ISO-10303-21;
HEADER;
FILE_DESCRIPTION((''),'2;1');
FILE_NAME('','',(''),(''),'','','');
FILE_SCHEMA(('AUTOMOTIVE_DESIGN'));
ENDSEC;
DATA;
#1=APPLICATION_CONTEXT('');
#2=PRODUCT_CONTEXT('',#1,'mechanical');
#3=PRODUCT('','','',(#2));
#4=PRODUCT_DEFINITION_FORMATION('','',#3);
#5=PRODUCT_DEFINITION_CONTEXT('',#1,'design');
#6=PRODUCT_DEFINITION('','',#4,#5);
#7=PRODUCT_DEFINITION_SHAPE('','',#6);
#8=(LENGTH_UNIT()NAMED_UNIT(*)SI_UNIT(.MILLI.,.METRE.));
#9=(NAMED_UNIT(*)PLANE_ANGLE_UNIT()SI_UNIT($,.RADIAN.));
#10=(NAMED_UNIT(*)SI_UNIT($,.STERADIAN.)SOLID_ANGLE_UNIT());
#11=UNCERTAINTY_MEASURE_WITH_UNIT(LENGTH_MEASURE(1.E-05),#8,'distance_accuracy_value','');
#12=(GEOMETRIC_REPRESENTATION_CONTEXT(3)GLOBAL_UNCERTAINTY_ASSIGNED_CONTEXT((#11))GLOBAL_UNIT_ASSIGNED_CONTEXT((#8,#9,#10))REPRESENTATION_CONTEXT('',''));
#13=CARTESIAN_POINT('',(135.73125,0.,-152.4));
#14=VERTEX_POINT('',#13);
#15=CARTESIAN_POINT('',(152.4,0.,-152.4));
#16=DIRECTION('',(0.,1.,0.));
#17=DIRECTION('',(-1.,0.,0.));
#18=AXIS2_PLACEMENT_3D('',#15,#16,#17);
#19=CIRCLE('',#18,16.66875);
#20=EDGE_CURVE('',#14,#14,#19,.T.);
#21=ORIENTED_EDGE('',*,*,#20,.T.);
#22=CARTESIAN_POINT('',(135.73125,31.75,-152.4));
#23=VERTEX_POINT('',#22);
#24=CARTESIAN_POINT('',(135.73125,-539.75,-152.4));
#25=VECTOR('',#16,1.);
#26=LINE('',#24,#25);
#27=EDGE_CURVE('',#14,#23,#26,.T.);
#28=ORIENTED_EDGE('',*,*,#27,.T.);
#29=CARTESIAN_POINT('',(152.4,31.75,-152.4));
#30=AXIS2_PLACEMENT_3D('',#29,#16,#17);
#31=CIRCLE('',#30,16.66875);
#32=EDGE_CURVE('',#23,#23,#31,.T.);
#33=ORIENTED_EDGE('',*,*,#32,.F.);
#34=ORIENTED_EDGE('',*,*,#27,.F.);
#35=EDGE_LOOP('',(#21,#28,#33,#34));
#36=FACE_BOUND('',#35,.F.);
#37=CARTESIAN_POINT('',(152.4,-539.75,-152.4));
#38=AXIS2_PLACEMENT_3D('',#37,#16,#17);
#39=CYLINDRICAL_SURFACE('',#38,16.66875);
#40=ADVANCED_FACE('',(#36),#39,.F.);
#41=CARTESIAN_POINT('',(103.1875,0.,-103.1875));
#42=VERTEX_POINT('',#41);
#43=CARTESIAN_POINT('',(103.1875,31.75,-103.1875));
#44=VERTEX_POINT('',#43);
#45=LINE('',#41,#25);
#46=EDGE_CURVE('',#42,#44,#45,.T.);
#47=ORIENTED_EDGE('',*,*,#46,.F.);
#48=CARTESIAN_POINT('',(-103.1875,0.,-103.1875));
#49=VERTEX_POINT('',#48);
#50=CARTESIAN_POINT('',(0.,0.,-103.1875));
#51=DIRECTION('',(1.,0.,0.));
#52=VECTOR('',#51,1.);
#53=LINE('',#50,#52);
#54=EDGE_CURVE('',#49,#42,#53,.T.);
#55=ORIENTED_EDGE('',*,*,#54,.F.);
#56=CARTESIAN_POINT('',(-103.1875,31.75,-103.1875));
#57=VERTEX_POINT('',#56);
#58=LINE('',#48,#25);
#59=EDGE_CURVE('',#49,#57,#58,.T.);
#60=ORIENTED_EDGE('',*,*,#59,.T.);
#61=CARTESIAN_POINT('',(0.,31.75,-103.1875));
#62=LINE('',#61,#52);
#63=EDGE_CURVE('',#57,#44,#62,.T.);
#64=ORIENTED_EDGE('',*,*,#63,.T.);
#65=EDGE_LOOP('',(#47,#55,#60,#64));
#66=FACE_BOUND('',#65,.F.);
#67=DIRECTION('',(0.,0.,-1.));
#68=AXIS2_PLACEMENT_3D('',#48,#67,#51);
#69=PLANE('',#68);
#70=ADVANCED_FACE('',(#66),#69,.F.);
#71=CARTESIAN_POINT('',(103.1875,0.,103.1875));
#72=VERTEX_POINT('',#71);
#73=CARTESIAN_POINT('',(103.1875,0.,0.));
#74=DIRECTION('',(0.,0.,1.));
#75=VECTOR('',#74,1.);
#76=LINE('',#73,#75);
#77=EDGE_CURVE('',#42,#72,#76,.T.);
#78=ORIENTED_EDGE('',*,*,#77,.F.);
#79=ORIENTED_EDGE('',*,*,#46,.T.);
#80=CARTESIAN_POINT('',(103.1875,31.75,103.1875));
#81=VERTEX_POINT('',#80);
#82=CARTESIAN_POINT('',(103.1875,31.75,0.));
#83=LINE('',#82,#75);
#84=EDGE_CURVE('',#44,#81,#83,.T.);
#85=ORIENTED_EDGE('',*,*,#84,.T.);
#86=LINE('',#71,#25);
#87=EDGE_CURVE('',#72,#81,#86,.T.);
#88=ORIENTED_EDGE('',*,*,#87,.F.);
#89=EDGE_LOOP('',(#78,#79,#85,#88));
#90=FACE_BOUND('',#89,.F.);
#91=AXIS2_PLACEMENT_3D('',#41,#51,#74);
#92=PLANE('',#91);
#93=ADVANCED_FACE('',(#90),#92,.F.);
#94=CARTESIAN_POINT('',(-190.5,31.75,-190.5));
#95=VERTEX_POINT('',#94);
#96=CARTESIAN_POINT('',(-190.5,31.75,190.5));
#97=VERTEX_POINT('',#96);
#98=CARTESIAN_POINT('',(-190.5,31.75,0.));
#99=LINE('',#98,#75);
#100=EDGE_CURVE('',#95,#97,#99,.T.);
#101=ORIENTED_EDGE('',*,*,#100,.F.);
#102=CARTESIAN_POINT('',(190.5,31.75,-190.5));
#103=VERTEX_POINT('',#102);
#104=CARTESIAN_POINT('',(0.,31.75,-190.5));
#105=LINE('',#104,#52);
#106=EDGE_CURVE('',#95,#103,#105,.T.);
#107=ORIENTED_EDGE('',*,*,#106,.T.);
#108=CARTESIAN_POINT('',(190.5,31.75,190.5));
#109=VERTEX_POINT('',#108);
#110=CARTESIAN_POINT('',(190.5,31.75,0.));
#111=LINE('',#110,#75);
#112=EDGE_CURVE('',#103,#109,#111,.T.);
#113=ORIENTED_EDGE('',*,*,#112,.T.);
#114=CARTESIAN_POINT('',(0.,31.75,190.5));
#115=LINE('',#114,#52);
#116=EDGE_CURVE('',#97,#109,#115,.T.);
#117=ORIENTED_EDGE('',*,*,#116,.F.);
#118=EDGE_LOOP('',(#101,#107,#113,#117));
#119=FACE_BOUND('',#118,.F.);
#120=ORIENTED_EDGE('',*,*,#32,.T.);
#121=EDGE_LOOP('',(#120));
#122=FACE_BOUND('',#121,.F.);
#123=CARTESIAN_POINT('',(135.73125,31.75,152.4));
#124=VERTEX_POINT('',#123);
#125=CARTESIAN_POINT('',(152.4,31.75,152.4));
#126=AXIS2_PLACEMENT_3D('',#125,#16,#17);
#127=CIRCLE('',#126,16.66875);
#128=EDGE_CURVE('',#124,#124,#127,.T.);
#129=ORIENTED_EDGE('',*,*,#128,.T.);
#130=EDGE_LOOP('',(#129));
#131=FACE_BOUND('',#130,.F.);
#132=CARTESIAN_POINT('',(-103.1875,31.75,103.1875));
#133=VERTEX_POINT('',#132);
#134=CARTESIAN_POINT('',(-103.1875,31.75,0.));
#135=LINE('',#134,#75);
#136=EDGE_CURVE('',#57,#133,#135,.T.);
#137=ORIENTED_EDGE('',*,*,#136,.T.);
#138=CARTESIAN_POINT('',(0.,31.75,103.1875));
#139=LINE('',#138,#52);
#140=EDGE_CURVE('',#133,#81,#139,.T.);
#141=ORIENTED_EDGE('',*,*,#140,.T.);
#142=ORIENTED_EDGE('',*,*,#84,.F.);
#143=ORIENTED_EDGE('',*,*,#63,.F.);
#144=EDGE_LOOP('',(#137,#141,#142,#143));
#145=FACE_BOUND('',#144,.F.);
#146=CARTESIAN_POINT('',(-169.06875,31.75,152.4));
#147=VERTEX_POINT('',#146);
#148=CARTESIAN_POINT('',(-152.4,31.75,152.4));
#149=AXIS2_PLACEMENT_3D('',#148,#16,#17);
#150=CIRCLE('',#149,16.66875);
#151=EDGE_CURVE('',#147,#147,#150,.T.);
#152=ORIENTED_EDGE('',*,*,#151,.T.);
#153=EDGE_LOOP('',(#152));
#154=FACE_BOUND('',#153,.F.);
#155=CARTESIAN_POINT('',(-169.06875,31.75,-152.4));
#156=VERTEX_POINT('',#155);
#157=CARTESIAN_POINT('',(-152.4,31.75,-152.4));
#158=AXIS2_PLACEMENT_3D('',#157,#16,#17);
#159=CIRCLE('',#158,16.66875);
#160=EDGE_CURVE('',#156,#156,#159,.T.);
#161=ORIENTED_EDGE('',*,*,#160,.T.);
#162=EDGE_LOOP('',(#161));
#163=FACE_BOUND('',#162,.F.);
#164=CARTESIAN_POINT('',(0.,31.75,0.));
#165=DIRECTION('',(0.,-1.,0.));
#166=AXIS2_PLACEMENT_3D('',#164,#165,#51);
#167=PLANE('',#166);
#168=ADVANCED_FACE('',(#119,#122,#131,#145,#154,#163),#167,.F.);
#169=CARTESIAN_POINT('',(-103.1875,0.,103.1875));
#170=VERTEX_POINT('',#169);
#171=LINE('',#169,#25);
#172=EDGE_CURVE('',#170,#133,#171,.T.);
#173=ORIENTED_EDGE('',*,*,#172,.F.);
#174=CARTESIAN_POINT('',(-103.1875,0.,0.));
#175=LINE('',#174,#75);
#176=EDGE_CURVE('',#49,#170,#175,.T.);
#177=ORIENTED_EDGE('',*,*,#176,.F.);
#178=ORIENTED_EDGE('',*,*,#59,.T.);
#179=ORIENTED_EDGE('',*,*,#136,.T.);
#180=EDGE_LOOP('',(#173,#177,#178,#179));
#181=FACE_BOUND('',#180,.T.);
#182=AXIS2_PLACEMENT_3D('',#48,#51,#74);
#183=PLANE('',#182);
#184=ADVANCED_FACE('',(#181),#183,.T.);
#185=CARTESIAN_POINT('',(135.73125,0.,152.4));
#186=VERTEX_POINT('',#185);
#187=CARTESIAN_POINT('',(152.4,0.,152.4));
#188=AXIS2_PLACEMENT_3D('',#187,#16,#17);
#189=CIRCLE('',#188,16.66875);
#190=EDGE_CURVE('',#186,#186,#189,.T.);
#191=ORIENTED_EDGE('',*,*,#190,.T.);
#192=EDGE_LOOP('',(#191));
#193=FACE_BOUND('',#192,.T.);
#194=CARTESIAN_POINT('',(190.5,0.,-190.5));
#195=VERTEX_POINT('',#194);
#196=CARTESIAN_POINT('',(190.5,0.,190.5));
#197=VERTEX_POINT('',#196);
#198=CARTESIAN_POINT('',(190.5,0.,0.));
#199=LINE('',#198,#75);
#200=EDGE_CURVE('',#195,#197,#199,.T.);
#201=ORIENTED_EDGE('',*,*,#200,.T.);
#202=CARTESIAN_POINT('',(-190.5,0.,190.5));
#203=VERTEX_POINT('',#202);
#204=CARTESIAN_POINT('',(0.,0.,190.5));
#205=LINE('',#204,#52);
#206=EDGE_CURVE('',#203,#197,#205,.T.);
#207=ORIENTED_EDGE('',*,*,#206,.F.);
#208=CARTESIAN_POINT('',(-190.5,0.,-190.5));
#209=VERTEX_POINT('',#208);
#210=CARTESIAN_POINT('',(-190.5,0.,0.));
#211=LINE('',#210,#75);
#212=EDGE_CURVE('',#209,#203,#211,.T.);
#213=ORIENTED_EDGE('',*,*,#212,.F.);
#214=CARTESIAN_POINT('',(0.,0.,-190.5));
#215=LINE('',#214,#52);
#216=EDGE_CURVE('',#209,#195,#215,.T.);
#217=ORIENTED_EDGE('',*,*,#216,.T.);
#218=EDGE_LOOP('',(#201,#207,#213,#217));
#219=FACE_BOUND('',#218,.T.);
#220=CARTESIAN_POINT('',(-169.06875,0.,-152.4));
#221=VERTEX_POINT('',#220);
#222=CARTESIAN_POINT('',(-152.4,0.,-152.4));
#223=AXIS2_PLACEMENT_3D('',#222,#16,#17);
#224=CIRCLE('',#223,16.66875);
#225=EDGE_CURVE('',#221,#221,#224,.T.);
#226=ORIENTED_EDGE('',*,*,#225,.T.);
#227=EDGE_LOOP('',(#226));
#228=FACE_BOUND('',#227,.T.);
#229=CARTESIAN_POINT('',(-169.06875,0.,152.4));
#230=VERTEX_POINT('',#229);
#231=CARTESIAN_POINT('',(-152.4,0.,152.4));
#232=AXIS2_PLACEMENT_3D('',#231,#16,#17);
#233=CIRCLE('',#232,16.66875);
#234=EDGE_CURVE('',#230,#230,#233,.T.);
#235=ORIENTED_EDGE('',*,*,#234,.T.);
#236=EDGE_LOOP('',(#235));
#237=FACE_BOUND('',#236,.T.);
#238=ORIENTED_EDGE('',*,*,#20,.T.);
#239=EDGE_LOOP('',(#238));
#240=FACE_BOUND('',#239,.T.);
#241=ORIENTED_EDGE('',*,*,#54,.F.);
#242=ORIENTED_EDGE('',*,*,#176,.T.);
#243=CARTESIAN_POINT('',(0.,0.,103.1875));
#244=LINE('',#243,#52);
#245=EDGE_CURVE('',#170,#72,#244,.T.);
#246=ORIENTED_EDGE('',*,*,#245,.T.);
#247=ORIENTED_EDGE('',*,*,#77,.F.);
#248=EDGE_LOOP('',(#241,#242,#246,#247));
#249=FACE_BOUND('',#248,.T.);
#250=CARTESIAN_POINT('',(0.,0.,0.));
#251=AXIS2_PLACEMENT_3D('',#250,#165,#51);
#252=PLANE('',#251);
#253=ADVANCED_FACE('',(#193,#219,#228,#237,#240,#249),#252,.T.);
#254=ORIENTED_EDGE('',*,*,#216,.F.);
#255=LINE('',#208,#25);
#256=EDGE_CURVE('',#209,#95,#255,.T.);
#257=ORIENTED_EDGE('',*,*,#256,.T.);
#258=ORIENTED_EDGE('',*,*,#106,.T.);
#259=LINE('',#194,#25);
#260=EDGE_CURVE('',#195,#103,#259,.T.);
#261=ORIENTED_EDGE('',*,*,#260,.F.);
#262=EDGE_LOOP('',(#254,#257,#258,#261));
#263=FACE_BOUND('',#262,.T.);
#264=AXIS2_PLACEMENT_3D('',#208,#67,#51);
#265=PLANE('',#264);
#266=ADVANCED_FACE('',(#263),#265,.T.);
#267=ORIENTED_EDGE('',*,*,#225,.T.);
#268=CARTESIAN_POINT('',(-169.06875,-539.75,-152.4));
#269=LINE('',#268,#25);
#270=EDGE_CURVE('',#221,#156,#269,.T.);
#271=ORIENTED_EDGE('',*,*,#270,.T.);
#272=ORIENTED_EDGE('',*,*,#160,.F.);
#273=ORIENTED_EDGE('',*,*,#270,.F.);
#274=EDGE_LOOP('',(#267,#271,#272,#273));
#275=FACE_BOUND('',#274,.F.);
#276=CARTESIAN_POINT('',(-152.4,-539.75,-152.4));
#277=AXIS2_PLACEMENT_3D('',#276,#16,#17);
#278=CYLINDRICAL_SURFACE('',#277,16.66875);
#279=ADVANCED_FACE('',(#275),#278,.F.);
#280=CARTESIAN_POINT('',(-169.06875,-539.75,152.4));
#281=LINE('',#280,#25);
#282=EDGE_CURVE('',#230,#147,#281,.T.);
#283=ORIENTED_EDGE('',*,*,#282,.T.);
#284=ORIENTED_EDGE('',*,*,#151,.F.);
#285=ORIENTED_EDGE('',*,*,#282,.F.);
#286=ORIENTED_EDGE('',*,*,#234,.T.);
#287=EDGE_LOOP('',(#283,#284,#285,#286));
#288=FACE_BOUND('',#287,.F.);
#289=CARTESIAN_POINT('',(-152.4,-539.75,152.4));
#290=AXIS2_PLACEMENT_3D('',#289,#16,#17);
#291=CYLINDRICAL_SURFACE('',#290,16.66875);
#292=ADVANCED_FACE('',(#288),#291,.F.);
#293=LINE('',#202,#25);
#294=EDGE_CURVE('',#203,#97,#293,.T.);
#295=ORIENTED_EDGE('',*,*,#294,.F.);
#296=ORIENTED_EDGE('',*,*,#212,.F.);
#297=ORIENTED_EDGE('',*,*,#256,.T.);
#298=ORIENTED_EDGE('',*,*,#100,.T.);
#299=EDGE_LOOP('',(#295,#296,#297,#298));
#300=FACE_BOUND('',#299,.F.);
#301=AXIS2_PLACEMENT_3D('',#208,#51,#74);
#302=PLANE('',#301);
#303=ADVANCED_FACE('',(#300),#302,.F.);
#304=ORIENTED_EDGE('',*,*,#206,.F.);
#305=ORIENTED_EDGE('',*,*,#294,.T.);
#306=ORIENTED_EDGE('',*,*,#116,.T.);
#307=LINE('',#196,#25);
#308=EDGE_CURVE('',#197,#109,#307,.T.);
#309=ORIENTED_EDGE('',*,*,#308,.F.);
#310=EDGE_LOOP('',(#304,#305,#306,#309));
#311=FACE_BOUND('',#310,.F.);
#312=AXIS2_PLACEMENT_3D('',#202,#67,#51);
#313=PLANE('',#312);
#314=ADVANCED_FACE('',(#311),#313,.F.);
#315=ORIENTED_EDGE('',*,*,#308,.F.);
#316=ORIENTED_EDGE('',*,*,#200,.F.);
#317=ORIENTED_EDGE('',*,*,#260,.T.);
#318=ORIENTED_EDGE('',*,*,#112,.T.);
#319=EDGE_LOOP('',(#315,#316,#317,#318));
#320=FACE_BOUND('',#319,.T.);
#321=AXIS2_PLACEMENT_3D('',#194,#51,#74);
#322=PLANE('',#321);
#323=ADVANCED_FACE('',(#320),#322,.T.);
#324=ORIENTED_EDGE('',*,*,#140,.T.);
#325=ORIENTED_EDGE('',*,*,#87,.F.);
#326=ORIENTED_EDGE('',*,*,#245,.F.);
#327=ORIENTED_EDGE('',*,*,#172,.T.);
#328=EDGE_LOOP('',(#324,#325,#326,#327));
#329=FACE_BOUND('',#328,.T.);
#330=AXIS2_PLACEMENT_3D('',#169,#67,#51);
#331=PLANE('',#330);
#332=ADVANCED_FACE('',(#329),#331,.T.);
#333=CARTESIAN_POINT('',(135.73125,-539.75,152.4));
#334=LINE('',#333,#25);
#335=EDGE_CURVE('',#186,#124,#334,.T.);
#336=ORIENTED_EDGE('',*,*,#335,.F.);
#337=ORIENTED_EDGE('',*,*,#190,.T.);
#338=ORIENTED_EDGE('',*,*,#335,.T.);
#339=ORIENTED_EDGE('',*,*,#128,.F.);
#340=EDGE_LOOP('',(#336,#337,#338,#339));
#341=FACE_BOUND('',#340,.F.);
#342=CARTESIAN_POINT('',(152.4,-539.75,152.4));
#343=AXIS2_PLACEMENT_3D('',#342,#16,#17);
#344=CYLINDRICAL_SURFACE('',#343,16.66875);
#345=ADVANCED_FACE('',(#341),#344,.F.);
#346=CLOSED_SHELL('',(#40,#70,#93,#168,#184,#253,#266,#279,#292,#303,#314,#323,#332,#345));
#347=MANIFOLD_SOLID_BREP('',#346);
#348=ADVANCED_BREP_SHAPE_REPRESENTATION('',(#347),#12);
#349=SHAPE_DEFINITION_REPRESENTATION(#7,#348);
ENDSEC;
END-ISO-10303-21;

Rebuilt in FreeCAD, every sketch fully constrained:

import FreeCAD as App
import Part
import Sketcher
from FreeCAD import Vector
Q = App.Units.Quantity


def add_polygon(sketch, points):
    """Adds a closed chain of lines whose ends are joined by coincident constraints."""
    first, n = sketch.GeometryCount, len(points)
    for a, b in zip(points, points[1:] + points[:1]):
        sketch.addGeometry(Part.LineSegment(App.Vector(*a, 0), App.Vector(*b, 0)), False)
    for i in range(n):
        sketch.addConstraint(Sketcher.Constraint("Coincident", first + i, 2, first + (i + 1) % n, 1))

doc = App.newDocument("Part")
params = doc.addObject("Spreadsheet::Sheet", "Params")
for row, (alias, value) in enumerate([
    ("sketch1_width", "15 in"),
    ("sketch1_width2", "8.125 in"),
    ("pad1_length", "1.25 in"),
    ("sketch2_diameter", "1.3125 in"),
    ("hole_diameter", "1.3125 in"),
], start=1):
    params.set(f"A{row}", alias)
    params.set(f"B{row}", "=" + value)
    params.setAlias(f"B{row}", alias)

body = doc.addObject("PartDesign::Body", "Body")

# Sketch on XZ plane
sketch1 = body.newObject("Sketcher::SketchObject", "Sketch")
sketch1.AttachmentSupport = (doc.getObject("XZ_Plane"), [""])
sketch1.MapMode = "FlatFace"
add_polygon(sketch1, [(-190, 190), (-190, -190), (190, -190), (190, 190)])  # lines 0-3
add_polygon(sketch1, [(103, -103), (-103, -103), (-103, 103), (103, 103)])  # lines 4-7
sketch1.addConstraint(Sketcher.Constraint("Vertical", 0))
sketch1.addConstraint(Sketcher.Constraint("Horizontal", 1))
sketch1.addConstraint(Sketcher.Constraint("Vertical", 2))
sketch1.addConstraint(Sketcher.Constraint("Horizontal", 3))
sketch1.addConstraint(Sketcher.Constraint("Horizontal", 4))
sketch1.addConstraint(Sketcher.Constraint("Vertical", 5))
sketch1.addConstraint(Sketcher.Constraint("Horizontal", 6))
sketch1.addConstraint(Sketcher.Constraint("Vertical", 7))
sketch1.addConstraint(Sketcher.Constraint("Symmetric", 0, 2, 2, 2, -1, 1))
sketch1.addConstraint(Sketcher.Constraint("Symmetric", 4, 2, 6, 2, -1, 1))
sketch1.addConstraint(Sketcher.Constraint("Equal", 3, 0))
sketch1.addConstraint(Sketcher.Constraint("Equal", 6, 5))
sketch1.addConstraint(Sketcher.Constraint("DistanceX", 1, 1, 1, 2, Q("15 in")))
sketch1.addConstraint(Sketcher.Constraint("DistanceX", 4, 2, 4, 1, Q("8.125 in")))
sketch1.setExpression("Constraints[20]", "Params.sketch1_width")
sketch1.setExpression("Constraints[21]", "Params.sketch1_width2")
pad1 = body.newObject("PartDesign::Pad", "Pad")
pad1.Profile = sketch1
pad1.setExpression("Length", "Params.pad1_length")
pad1.Reversed = True

# Sketch on XZ plane
sketch2 = body.newObject("Sketcher::SketchObject", "Sketch001")
sketch2.AttachmentSupport = (doc.getObject("XZ_Plane"), [""])
sketch2.MapMode = "FlatFace"
sketch2.addGeometry(Part.Circle(Vector(-152, 152, 0), Vector(0, 0, 1), 17), False)
sketch2.addGeometry(Part.Circle(Vector(152, 152, 0), Vector(0, 0, 1), 17), False)
sketch2.addGeometry(Part.Circle(Vector(152, -152, 0), Vector(0, 0, 1), 17), False)
sketch2.addGeometry(Part.Circle(Vector(-152, -152, 0), Vector(0, 0, 1), 17), False)
sketch2.addConstraint(Sketcher.Constraint("Equal", 0, 1))
sketch2.addConstraint(Sketcher.Constraint("Equal", 1, 2))
sketch2.addConstraint(Sketcher.Constraint("Equal", 2, 3))
sketch2.addConstraint(Sketcher.Constraint("Symmetric", 0, 3, 2, 3, -1, 1))
sketch2.addConstraint(Sketcher.Constraint("Symmetric", 1, 3, 3, 3, -1, 1))
sketch2.addConstraint(Sketcher.Constraint("Symmetric", 0, 3, 1, 3, -2))
sketch2.addConstraint(Sketcher.Constraint("Diameter", 0, Q("1.3125 in")))
sketch2.addConstraint(Sketcher.Constraint("DistanceX", 0, 3, -1, 1, Q("6 in")))
sketch2.addConstraint(Sketcher.Constraint("DistanceY", -1, 1, 0, 3, Q("6 in")))
sketch2.setExpression("Constraints[6]", "Params.sketch2_diameter")
doc.recompute()
hole = body.newObject("PartDesign::Hole", "Hole")
hole.Profile = sketch2
hole.ThreadType = "None"
hole.setExpression("Diameter", "Params.hole_diameter")
hole.DepthType = "ThroughAll"

doc.recompute()
